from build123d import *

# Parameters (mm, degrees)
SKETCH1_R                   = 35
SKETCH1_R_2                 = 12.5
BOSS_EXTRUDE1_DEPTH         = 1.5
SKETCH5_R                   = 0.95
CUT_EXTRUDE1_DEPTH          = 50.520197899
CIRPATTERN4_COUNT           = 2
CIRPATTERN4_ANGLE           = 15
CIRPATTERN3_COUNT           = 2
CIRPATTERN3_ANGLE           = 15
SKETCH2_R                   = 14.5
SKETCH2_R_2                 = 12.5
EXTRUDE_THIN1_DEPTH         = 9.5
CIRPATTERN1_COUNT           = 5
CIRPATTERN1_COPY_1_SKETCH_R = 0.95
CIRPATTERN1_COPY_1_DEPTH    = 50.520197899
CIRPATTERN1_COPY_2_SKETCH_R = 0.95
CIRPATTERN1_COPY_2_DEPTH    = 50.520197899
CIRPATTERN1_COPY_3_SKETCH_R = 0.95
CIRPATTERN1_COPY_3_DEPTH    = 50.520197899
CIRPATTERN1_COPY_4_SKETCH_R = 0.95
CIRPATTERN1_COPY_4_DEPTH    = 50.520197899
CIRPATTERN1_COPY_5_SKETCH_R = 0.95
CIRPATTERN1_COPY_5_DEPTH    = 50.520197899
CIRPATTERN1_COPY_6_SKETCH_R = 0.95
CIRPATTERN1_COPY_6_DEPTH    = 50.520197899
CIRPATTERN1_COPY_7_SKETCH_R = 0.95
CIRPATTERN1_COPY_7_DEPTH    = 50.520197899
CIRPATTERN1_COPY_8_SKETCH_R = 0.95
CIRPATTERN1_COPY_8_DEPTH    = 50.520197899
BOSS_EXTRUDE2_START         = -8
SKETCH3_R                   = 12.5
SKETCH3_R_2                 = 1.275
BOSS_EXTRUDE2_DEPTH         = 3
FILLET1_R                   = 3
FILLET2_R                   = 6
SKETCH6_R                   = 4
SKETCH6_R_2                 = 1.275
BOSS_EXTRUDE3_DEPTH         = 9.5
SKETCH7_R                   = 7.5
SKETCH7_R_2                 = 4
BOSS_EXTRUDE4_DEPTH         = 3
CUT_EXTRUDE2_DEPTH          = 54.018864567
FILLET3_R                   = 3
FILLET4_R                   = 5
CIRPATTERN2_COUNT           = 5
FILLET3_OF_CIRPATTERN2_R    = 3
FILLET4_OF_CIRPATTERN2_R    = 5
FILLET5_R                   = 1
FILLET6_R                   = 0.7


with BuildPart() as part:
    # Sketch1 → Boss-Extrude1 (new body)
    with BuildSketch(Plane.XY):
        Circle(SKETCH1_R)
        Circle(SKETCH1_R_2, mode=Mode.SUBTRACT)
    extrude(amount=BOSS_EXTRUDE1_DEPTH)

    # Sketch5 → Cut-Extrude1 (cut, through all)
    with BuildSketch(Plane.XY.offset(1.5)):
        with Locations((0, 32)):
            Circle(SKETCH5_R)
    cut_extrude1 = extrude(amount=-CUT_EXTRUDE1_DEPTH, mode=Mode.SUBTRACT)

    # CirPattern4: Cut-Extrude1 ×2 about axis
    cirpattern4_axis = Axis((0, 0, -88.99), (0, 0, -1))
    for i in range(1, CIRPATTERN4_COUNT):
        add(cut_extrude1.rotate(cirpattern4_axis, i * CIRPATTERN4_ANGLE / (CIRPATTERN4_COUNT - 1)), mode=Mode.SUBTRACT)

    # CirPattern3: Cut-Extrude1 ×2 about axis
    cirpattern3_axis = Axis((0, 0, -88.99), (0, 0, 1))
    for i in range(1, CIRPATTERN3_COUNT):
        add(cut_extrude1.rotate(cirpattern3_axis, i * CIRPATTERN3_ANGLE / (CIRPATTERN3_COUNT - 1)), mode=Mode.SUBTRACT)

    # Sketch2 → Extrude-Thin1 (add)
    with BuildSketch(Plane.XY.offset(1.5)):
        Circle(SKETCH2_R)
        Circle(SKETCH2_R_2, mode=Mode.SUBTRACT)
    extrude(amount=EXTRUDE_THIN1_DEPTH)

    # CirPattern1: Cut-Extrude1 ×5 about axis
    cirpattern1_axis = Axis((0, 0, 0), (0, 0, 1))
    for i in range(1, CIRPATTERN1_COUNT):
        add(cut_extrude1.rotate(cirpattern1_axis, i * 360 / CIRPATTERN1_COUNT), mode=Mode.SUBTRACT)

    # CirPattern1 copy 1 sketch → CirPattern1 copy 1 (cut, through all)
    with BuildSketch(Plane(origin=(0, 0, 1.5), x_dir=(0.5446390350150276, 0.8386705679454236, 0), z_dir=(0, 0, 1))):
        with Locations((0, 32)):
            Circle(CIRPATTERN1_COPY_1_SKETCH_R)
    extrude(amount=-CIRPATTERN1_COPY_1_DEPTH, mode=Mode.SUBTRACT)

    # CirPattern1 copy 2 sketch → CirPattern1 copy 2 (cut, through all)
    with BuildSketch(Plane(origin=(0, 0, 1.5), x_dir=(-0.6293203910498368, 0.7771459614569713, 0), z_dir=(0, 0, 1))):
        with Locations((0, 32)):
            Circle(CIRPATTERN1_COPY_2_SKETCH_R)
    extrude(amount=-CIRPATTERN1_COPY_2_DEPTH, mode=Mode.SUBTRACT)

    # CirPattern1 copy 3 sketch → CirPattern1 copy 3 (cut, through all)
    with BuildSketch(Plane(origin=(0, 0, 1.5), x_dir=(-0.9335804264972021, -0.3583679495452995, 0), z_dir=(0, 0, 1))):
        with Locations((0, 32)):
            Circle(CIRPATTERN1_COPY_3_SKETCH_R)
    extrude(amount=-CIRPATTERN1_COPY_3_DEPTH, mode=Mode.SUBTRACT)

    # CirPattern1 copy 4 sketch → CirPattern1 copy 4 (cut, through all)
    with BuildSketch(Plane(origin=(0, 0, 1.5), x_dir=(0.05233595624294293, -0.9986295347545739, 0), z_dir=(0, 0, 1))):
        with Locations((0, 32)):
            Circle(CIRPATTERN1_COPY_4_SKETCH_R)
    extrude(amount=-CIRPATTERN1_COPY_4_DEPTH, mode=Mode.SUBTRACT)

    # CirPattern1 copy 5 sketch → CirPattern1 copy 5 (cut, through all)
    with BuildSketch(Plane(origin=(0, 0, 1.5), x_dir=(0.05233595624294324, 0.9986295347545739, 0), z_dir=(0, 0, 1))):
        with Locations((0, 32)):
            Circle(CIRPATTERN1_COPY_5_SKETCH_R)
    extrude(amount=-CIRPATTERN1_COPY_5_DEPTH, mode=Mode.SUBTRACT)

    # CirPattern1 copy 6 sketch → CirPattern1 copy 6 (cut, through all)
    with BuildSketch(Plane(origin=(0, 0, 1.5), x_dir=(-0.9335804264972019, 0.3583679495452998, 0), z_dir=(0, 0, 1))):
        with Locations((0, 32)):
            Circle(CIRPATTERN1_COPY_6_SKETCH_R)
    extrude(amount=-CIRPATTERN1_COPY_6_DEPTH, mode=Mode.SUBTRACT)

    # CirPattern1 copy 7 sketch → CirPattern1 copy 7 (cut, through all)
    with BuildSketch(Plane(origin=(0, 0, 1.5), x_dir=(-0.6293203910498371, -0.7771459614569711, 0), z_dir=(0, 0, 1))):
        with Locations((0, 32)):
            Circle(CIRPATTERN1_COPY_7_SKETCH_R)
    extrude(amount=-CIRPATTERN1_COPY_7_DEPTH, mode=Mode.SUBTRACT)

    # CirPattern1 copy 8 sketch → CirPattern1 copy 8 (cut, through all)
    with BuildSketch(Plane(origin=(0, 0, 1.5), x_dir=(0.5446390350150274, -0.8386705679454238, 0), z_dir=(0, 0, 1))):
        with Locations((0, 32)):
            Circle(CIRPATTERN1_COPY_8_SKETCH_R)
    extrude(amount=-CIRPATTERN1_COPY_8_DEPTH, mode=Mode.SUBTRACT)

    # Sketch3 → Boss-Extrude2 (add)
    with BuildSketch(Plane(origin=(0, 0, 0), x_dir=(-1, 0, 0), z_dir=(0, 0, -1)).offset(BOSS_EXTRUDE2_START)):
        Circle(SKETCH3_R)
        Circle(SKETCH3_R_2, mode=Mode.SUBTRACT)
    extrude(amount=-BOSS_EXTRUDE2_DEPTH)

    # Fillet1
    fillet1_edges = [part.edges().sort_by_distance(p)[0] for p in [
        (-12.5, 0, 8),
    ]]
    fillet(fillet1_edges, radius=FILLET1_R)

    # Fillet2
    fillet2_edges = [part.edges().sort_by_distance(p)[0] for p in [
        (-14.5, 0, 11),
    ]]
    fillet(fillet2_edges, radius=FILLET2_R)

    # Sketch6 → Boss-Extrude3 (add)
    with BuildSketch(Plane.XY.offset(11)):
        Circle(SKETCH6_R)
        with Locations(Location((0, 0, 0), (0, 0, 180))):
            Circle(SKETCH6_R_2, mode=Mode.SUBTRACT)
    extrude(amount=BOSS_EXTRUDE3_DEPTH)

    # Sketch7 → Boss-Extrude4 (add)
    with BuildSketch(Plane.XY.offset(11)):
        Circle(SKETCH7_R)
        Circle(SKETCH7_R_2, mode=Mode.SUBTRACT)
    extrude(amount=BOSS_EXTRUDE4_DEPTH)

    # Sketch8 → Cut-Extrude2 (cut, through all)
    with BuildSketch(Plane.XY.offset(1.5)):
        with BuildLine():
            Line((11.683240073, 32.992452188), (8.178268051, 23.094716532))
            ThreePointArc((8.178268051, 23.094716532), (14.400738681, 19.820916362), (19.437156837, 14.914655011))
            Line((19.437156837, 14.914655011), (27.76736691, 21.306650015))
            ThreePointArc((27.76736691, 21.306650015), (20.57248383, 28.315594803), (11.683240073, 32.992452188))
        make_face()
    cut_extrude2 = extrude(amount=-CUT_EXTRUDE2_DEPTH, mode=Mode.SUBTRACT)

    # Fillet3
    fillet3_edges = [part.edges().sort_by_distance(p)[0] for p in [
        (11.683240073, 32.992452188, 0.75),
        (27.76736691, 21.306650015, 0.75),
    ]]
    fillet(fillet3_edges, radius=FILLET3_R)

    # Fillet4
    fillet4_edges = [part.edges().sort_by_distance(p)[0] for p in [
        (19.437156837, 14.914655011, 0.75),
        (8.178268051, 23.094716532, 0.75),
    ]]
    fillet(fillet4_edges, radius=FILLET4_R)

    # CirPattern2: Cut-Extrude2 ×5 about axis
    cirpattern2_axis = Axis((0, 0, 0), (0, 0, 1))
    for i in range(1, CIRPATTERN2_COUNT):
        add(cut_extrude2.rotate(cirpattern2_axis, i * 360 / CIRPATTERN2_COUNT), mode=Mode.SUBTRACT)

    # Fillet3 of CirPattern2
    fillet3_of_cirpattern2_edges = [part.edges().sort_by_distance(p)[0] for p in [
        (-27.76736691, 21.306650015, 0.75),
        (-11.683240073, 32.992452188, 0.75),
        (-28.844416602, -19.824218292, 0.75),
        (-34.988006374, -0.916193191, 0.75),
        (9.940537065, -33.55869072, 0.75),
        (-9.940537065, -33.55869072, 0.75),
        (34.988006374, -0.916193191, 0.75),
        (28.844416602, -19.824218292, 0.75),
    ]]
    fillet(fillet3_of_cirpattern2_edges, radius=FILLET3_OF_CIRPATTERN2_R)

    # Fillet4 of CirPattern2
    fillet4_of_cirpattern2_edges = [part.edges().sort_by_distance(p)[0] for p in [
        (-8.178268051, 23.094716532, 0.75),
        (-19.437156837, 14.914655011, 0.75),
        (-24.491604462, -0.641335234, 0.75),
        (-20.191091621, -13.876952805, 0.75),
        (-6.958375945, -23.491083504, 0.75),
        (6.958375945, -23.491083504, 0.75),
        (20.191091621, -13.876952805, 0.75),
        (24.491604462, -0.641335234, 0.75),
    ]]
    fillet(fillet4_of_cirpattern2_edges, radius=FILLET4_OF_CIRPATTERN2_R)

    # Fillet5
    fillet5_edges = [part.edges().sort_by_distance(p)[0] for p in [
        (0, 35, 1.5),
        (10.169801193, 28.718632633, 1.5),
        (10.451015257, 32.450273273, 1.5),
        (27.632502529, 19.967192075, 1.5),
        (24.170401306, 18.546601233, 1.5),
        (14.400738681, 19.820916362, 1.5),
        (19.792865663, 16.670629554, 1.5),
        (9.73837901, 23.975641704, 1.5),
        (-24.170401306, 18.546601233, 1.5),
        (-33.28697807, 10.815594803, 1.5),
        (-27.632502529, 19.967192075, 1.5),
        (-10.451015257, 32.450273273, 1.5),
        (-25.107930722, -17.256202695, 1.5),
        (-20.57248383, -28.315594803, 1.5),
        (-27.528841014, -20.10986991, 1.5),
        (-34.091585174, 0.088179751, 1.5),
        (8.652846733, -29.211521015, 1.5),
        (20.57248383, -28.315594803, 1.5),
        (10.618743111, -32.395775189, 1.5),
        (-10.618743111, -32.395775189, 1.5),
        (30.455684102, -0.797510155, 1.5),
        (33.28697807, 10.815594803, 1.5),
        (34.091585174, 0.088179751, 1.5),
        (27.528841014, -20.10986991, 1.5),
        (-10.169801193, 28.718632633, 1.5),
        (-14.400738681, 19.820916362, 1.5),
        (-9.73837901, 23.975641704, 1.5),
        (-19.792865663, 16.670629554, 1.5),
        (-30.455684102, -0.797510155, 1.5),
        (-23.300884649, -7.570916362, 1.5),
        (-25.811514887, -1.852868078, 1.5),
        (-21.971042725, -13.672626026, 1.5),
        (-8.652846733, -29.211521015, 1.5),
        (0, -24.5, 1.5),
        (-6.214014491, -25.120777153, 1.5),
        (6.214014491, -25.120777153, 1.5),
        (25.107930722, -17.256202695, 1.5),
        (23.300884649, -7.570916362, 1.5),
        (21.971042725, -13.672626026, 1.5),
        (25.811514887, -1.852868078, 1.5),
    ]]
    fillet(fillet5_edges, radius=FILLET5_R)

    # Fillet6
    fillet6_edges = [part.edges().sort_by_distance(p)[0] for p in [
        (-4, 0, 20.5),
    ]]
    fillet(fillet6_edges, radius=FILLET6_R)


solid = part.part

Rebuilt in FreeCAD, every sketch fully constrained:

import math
import FreeCAD as App
import Part
import Sketcher
from FreeCAD import Vector
Q = App.Units.Quantity


def edges_at(feature, points):
    """Names of the edges that pass closest to the given points."""
    edges = feature.Shape.Edges
    near = lambda p: min(range(len(edges)), key=lambda i: edges[i].distToShape(Part.Vertex(*p))[0])
    return sorted({f"Edge{near(p) + 1}" for p in points})

doc = App.newDocument("Part")
body = doc.addObject("PartDesign::Body", "Body")

# Sketch on XY plane
sketch1 = body.newObject("Sketcher::SketchObject", "Sketch")
sketch1.AttachmentSupport = (doc.getObject("XY_Plane"), [""])
sketch1.MapMode = "FlatFace"
sketch1.addGeometry(Part.Circle(Vector(0, 0, 0), Vector(0, 0, 1), 35), False)
sketch1.addGeometry(Part.Circle(Vector(0, 0, 0), Vector(0, 0, 1), 12), False)
sketch1.addConstraint(Sketcher.Constraint("Coincident", 0, 3, -1, 1))
sketch1.addConstraint(Sketcher.Constraint("Coincident", 1, 3, -1, 1))
sketch1.addConstraint(Sketcher.Constraint("Diameter", 0, Q("70 mm")))
sketch1.addConstraint(Sketcher.Constraint("Diameter", 1, Q("25 mm")))
pad1 = body.newObject("PartDesign::Pad", "Pad")
pad1.Profile = sketch1
pad1.Length = 1.5

# Sketch on XY plane
sketch2 = body.newObject("Sketcher::SketchObject", "Sketch001")
sketch2.AttachmentSupport = (doc.getObject("XY_Plane"), [""])
sketch2.MapMode = "FlatFace"
sketch2.AttachmentOffset = App.Placement(Vector(0, 0, 1.5), App.Rotation())
sketch2.addGeometry(Part.Circle(Vector(0, 32, 0), Vector(0, 0, 1), 0.9), False)
sketch2.addConstraint(Sketcher.Constraint("PointOnObject", 0, 3, -2))
sketch2.addConstraint(Sketcher.Constraint("Diameter", 0, Q("1.9 mm")))
sketch2.addConstraint(Sketcher.Constraint("DistanceY", -1, 1, 0, 3, Q("32 mm")))
pocket1 = body.newObject("PartDesign::Pocket", "Pocket")
pocket1.Profile = sketch2
pocket1.Type = "ThroughAll"
doc.recompute()

polarpattern = body.newObject("PartDesign::PolarPattern", "PolarPattern")
polarpattern.Originals = [pocket1]
polarpattern.Axis = (doc.getObject("Z_Axis"), [""])
polarpattern.Angle = 15
polarpattern.Occurrences = 2
polarpattern.Reversed = True
body.Tip = polarpattern
doc.recompute()

polarpattern2 = body.newObject("PartDesign::PolarPattern", "PolarPattern001")
polarpattern2.Originals = [pocket1]
polarpattern2.Axis = (doc.getObject("Z_Axis"), [""])
polarpattern2.Angle = 15
polarpattern2.Occurrences = 2
body.Tip = polarpattern2

# Sketch on XY plane
sketch3 = body.newObject("Sketcher::SketchObject", "Sketch002")
sketch3.AttachmentSupport = (doc.getObject("XY_Plane"), [""])
sketch3.MapMode = "FlatFace"
sketch3.AttachmentOffset = App.Placement(Vector(0, 0, 1.5), App.Rotation())
sketch3.addGeometry(Part.Circle(Vector(0, 0, 0), Vector(0, 0, 1), 14), False)
sketch3.addGeometry(Part.Circle(Vector(0, 0, 0), Vector(0, 0, 1), 12), False)
sketch3.addConstraint(Sketcher.Constraint("Coincident", 0, 3, -1, 1))
sketch3.addConstraint(Sketcher.Constraint("Coincident", 1, 3, -1, 1))
sketch3.addConstraint(Sketcher.Constraint("Diameter", 0, Q("29 mm")))
sketch3.addConstraint(Sketcher.Constraint("Diameter", 1, Q("25 mm")))
pad2 = body.newObject("PartDesign::Pad", "Pad001")
pad2.Profile = sketch3
pad2.Length = 9.5
doc.recompute()

polarpattern3 = body.newObject("PartDesign::PolarPattern", "PolarPattern002")
polarpattern3.Originals = [pocket1]
polarpattern3.Axis = (doc.getObject("Z_Axis"), [""])
polarpattern3.Angle = 360
polarpattern3.Occurrences = 5
body.Tip = polarpattern3

# Sketch on XY plane
sketch4 = body.newObject("Sketcher::SketchObject", "Sketch003")
sketch4.AttachmentSupport = (doc.getObject("XY_Plane"), [""])
sketch4.MapMode = "FlatFace"
sketch4.AttachmentOffset = App.Placement(Vector(0, 0, 1.5), App.Rotation())
sketch4.addGeometry(Part.Circle(Vector(-26.8, 17.4, 0), Vector(0, 0, 1), 0.9), False)
sketch4.addConstraint(Sketcher.Constraint("Diameter", 0, Q("1.9 mm")))
sketch4.addConstraint(Sketcher.Constraint("DistanceX", 0, 3, -1, 1, Q("26.837458 mm")))
sketch4.addConstraint(Sketcher.Constraint("DistanceY", -1, 1, 0, 3, Q("17.428449 mm")))
pocket2 = body.newObject("PartDesign::Pocket", "Pocket001")
pocket2.Profile = sketch4
pocket2.Type = "ThroughAll"

# Sketch on XY plane
sketch5 = body.newObject("Sketcher::SketchObject", "Sketch004")
sketch5.AttachmentSupport = (doc.getObject("XY_Plane"), [""])
sketch5.MapMode = "FlatFace"
sketch5.AttachmentOffset = App.Placement(Vector(0, 0, 1.5), App.Rotation())
sketch5.addGeometry(Part.Circle(Vector(-24.9, -20.1, 0), Vector(0, 0, 1), 0.9), False)
sketch5.addConstraint(Sketcher.Constraint("Diameter", 0, Q("1.9 mm")))
sketch5.addConstraint(Sketcher.Constraint("DistanceX", 0, 3, -1, 1, Q("24.868671 mm")))
sketch5.addConstraint(Sketcher.Constraint("DistanceY", 0, 3, -1, 1, Q("20.138253 mm")))
pocket3 = body.newObject("PartDesign::Pocket", "Pocket002")
pocket3.Profile = sketch5
pocket3.Type = "ThroughAll"

# Sketch on XY plane
sketch6 = body.newObject("Sketcher::SketchObject", "Sketch005")
sketch6.AttachmentSupport = (doc.getObject("XY_Plane"), [""])
sketch6.MapMode = "FlatFace"
sketch6.AttachmentOffset = App.Placement(Vector(0, 0, 1.5), App.Rotation())
sketch6.addGeometry(Part.Circle(Vector(11.5, -29.9, 0), Vector(0, 0, 1), 0.9), False)
sketch6.addConstraint(Sketcher.Constraint("Diameter", 0, Q("1.9 mm")))
sketch6.addConstraint(Sketcher.Constraint("DistanceX", -1, 1, 0, 3, Q("11.467774 mm")))
sketch6.addConstraint(Sketcher.Constraint("DistanceY", 0, 3, -1, 1, Q("29.874574 mm")))
pocket4 = body.newObject("PartDesign::Pocket", "Pocket003")
pocket4.Profile = sketch6
pocket4.Type = "ThroughAll"

# Sketch on XY plane
sketch7 = body.newObject("Sketcher::SketchObject", "Sketch006")
sketch7.AttachmentSupport = (doc.getObject("XY_Plane"), [""])
sketch7.MapMode = "FlatFace"
sketch7.AttachmentOffset = App.Placement(Vector(0, 0, 1.5), App.Rotation())
sketch7.addGeometry(Part.Circle(Vector(32, 1.7, 0), Vector(0, 0, 1), 0.9), False)
sketch7.addConstraint(Sketcher.Constraint("Diameter", 0, Q("1.9 mm")))
sketch7.addConstraint(Sketcher.Constraint("DistanceY", -1, 1, 0, 3, Q("1.674751 mm")))
sketch7.addConstraint(Sketcher.Constraint("DistanceX", -1, 1, 0, 3, Q("31.956145 mm")))
pocket5 = body.newObject("PartDesign::Pocket", "Pocket004")
pocket5.Profile = sketch7
pocket5.Type = "ThroughAll"

# Sketch on XY plane
sketch8 = body.newObject("Sketcher::SketchObject", "Sketch007")
sketch8.AttachmentSupport = (doc.getObject("XY_Plane"), [""])
sketch8.MapMode = "FlatFace"
sketch8.AttachmentOffset = App.Placement(Vector(0, 0, 1.5), App.Rotation())
sketch8.addGeometry(Part.Circle(Vector(-32, 1.7, 0), Vector(0, 0, 1), 0.9), False)
sketch8.addConstraint(Sketcher.Constraint("Diameter", 0, Q("1.9 mm")))
sketch8.addConstraint(Sketcher.Constraint("DistanceY", -1, 1, 0, 3, Q("1.674751 mm")))
sketch8.addConstraint(Sketcher.Constraint("DistanceX", 0, 3, -1, 1, Q("31.956145 mm")))
pocket6 = body.newObject("PartDesign::Pocket", "Pocket005")
pocket6.Profile = sketch8
pocket6.Type = "ThroughAll"

# Sketch on XY plane
sketch9 = body.newObject("Sketcher::SketchObject", "Sketch008")
sketch9.AttachmentSupport = (doc.getObject("XY_Plane"), [""])
sketch9.MapMode = "FlatFace"
sketch9.AttachmentOffset = App.Placement(Vector(0, 0, 1.5), App.Rotation())
sketch9.addGeometry(Part.Circle(Vector(-11.5, -29.9, 0), Vector(0, 0, 1), 0.9), False)
sketch9.addConstraint(Sketcher.Constraint("Diameter", 0, Q("1.9 mm")))
sketch9.addConstraint(Sketcher.Constraint("DistanceX", 0, 3, -1, 1, Q("11.467774 mm")))
sketch9.addConstraint(Sketcher.Constraint("DistanceY", 0, 3, -1, 1, Q("29.874574 mm")))
pocket7 = body.newObject("PartDesign::Pocket", "Pocket006")
pocket7.Profile = sketch9
pocket7.Type = "ThroughAll"

# Sketch on XY plane
sketch10 = body.newObject("Sketcher::SketchObject", "Sketch009")
sketch10.AttachmentSupport = (doc.getObject("XY_Plane"), [""])
sketch10.MapMode = "FlatFace"
sketch10.AttachmentOffset = App.Placement(Vector(0, 0, 1.5), App.Rotation())
sketch10.addGeometry(Part.Circle(Vector(24.9, -20.1, 0), Vector(0, 0, 1), 0.9), False)
sketch10.addConstraint(Sketcher.Constraint("Diameter", 0, Q("1.9 mm")))
sketch10.addConstraint(Sketcher.Constraint("DistanceX", -1, 1, 0, 3, Q("24.868671 mm")))
sketch10.addConstraint(Sketcher.Constraint("DistanceY", 0, 3, -1, 1, Q("20.138253 mm")))
pocket8 = body.newObject("PartDesign::Pocket", "Pocket007")
pocket8.Profile = sketch10
pocket8.Type = "ThroughAll"

# Sketch on XY plane
sketch11 = body.newObject("Sketcher::SketchObject", "Sketch010")
sketch11.AttachmentSupport = (doc.getObject("XY_Plane"), [""])
sketch11.MapMode = "FlatFace"
sketch11.AttachmentOffset = App.Placement(Vector(0, 0, 1.5), App.Rotation())
sketch11.addGeometry(Part.Circle(Vector(26.8, 17.4, 0), Vector(0, 0, 1), 0.9), False)
sketch11.addConstraint(Sketcher.Constraint("Diameter", 0, Q("1.9 mm")))
sketch11.addConstraint(Sketcher.Constraint("DistanceX", -1, 1, 0, 3, Q("26.837458 mm")))
sketch11.addConstraint(Sketcher.Constraint("DistanceY", -1, 1, 0, 3, Q("17.428449 mm")))
pocket9 = body.newObject("PartDesign::Pocket", "Pocket008")
pocket9.Profile = sketch11
pocket9.Type = "ThroughAll"

# Sketch on XY plane
sketch12 = body.newObject("Sketcher::SketchObject", "Sketch011")
sketch12.AttachmentSupport = (doc.getObject("XY_Plane"), [""])
sketch12.MapMode = "FlatFace"
sketch12.AttachmentOffset = App.Placement(Vector(0, 0, 8), App.Rotation())
sketch12.addGeometry(Part.Circle(Vector(0, 0, 0), Vector(0, 0, 1), 12.5), False)
sketch12.addGeometry(Part.Circle(Vector(0, 0, 0), Vector(0, 0, 1), 1.3), False)
sketch12.addConstraint(Sketcher.Constraint("Coincident", 0, 3, -1, 1))
sketch12.addConstraint(Sketcher.Constraint("Coincident", 1, 3, -1, 1))
sketch12.addConstraint(Sketcher.Constraint("Diameter", 0, Q("25 mm")))
sketch12.addConstraint(Sketcher.Constraint("Diameter", 1, Q("2.55 mm")))
pad3 = body.newObject("PartDesign::Pad", "Pad002")
pad3.Profile = sketch12
pad3.Length = 3
doc.recompute()

fillet = body.newObject("PartDesign::Fillet", "Fillet")
fillet.Base = (pad3, edges_at(pad3, [(-12.5, 0, 8)]))
fillet.Radius = 3
doc.recompute()

fillet2 = body.newObject("PartDesign::Fillet", "Fillet001")
fillet2.Base = (fillet, edges_at(fillet, [(-14.5, 0, 11)]))
fillet2.Radius = 6

# Sketch on XY plane
sketch13 = body.newObject("Sketcher::SketchObject", "Sketch012")
sketch13.AttachmentSupport = (doc.getObject("XY_Plane"), [""])
sketch13.MapMode = "FlatFace"
sketch13.AttachmentOffset = App.Placement(Vector(0, 0, 11), App.Rotation())
sketch13.addGeometry(Part.Circle(Vector(0, 0, 0), Vector(0, 0, 1), 4), False)
sketch13.addGeometry(Part.Circle(Vector(0, 0, 0), Vector(0, 0, 1), 1.3), False)
sketch13.addConstraint(Sketcher.Constraint("Coincident", 0, 3, -1, 1))
sketch13.addConstraint(Sketcher.Constraint("Coincident", 1, 3, -1, 1))
sketch13.addConstraint(Sketcher.Constraint("Diameter", 0, Q("8 mm")))
sketch13.addConstraint(Sketcher.Constraint("Diameter", 1, Q("2.55 mm")))
pad4 = body.newObject("PartDesign::Pad", "Pad003")
pad4.Profile = sketch13
pad4.Length = 9.5

# Sketch on XY plane
sketch14 = body.newObject("Sketcher::SketchObject", "Sketch013")
sketch14.AttachmentSupport = (doc.getObject("XY_Plane"), [""])
sketch14.MapMode = "FlatFace"
sketch14.AttachmentOffset = App.Placement(Vector(0, 0, 11), App.Rotation())
sketch14.addGeometry(Part.Circle(Vector(0, 0, 0), Vector(0, 0, 1), 7.5), False)
sketch14.addGeometry(Part.Circle(Vector(0, 0, 0), Vector(0, 0, 1), 4), False)
sketch14.addConstraint(Sketcher.Constraint("Coincident", 0, 3, -1, 1))
sketch14.addConstraint(Sketcher.Constraint("Coincident", 1, 3, -1, 1))
sketch14.addConstraint(Sketcher.Constraint("Diameter", 0, Q("15 mm")))
sketch14.addConstraint(Sketcher.Constraint("Diameter", 1, Q("8 mm")))
pad5 = body.newObject("PartDesign::Pad", "Pad004")
pad5.Profile = sketch14
pad5.Length = 3

# Sketch on XY plane
sketch15 = body.newObject("Sketcher::SketchObject", "Sketch014")
sketch15.AttachmentSupport = (doc.getObject("XY_Plane"), [""])
sketch15.MapMode = "FlatFace"
sketch15.AttachmentOffset = App.Placement(Vector(0, 0, 1.5), App.Rotation())
sketch15.addGeometry(Part.LineSegment(Vector(12, 33, 0), Vector(8, 23, 0)), False)
sketch15.addGeometry(Part.ArcOfCircle(Part.Circle(Vector(0, 0, 0), Vector(0, 0, 1), 25), math.radians(38), math.radians(70)), False)
sketch15.addGeometry(Part.LineSegment(Vector(19, 15, 0), Vector(28, 21, 0)), False)
sketch15.addGeometry(Part.ArcOfCircle(Part.Circle(Vector(0, 0, 0), Vector(0, 0, 1), 35), math.radians(37), math.radians(71)), False)
sketch15.addConstraint(Sketcher.Constraint("Coincident", 0, 2, 1, 2))
sketch15.addConstraint(Sketcher.Constraint("Coincident", 1, 1, 2, 1))
sketch15.addConstraint(Sketcher.Constraint("Coincident", 2, 2, 3, 1))
sketch15.addConstraint(Sketcher.Constraint("Coincident", 3, 2, 0, 1))
sketch15.addConstraint(Sketcher.Constraint("Coincident", 1, 3, -1, 1))
sketch15.addConstraint(Sketcher.Constraint("Coincident", 3, 3, -1, 1))
sketch15.addConstraint(Sketcher.Constraint("Radius", 3, Q("35 mm")))
sketch15.addConstraint(Sketcher.Constraint("Radius", 1, Q("24.5 mm")))
sketch15.addConstraint(Sketcher.Constraint("Angle", 0, Q("-109.5 deg")))
sketch15.addConstraint(Sketcher.Constraint("Angle", 2, Q("37.5 deg")))
sketch15.addConstraint(Sketcher.Constraint("DistanceX", 0, 2, 2, 2, Q("19.589099 mm")))
sketch15.addConstraint(Sketcher.Constraint("DistanceX", -1, 1, 0, 2, Q("8.178268 mm")))
pocket10 = body.newObject("PartDesign::Pocket", "Pocket009")
pocket10.Profile = sketch15
pocket10.Type = "ThroughAll"
doc.recompute()

fillet3 = body.newObject("PartDesign::Fillet", "Fillet002")
fillet3.Base = (pocket10, edges_at(pocket10, [(11.683, 32.992, 0.75), (27.767, 21.307, 0.75)]))
fillet3.Radius = 3
doc.recompute()

fillet4 = body.newObject("PartDesign::Fillet", "Fillet003")
fillet4.Base = (fillet3, edges_at(fillet3, [(19.437, 14.915, 0.75), (8.178, 23.095, 0.75)]))
fillet4.Radius = 5
doc.recompute()

polarpattern4 = body.newObject("PartDesign::PolarPattern", "PolarPattern003")
polarpattern4.Originals = [pocket10]
polarpattern4.Axis = (doc.getObject("Z_Axis"), [""])
polarpattern4.Angle = 360
polarpattern4.Occurrences = 5
body.Tip = polarpattern4
doc.recompute()

fillet5 = body.newObject("PartDesign::Fillet", "Fillet004")
fillet5.Base = (polarpattern4, edges_at(polarpattern4, [
    (-27.767, 21.307, 0.75),
    (-11.683, 32.992, 0.75),
    (-28.844, -19.824, 0.75),
    (-34.988, -0.916, 0.75),
    (9.941, -33.559, 0.75),
    (-9.941, -33.559, 0.75),
    (34.988, -0.916, 0.75),
    (28.844, -19.824, 0.75),
]))
fillet5.Radius = 3
doc.recompute()

fillet6 = body.newObject("PartDesign::Fillet", "Fillet005")
fillet6.Base = (fillet5, edges_at(fillet5, [
    (-8.178, 23.095, 0.75),
    (-19.437, 14.915, 0.75),
    (-24.492, -0.641, 0.75),
    (-20.191, -13.877, 0.75),
    (-6.958, -23.491, 0.75),
    (6.958, -23.491, 0.75),
    (20.191, -13.877, 0.75),
    (24.492, -0.641, 0.75),
]))
fillet6.Radius = 5
doc.recompute()

fillet7 = body.newObject("PartDesign::Fillet", "Fillet006")
fillet7.Base = (fillet6, edges_at(fillet6, [
    (0, 35, 1.5),
    (10.17, 28.719, 1.5),
    (10.451, 32.45, 1.5),
    (27.633, 19.967, 1.5),
    (24.17, 18.547, 1.5),
    (14.401, 19.821, 1.5),
    (19.793, 16.671, 1.5),
    (9.738, 23.976, 1.5),
    (-24.17, 18.547, 1.5),
    (-33.287, 10.816, 1.5),
    (-27.633, 19.967, 1.5),
    (-10.451, 32.45, 1.5),
    (-25.108, -17.256, 1.5),
    (-20.572, -28.316, 1.5),
    (-27.529, -20.11, 1.5),
    (-34.092, 0.088, 1.5),
    (8.653, -29.212, 1.5),
    (20.572, -28.316, 1.5),
    (10.619, -32.396, 1.5),
    (-10.619, -32.396, 1.5),
    (30.456, -0.798, 1.5),
    (33.287, 10.816, 1.5),
    (34.092, 0.088, 1.5),
    (27.529, -20.11, 1.5),
    (-10.17, 28.719, 1.5),
    (-14.401, 19.821, 1.5),
    (-9.738, 23.976, 1.5),
    (-19.793, 16.671, 1.5),
    (-30.456, -0.798, 1.5),
    (-23.301, -7.571, 1.5),
    (-25.812, -1.853, 1.5),
    (-21.971, -13.673, 1.5),
    (-8.653, -29.212, 1.5),
    (0, -24.5, 1.5),
    (-6.214, -25.121, 1.5),
    (6.214, -25.121, 1.5),
    (25.108, -17.256, 1.5),
    (23.301, -7.571, 1.5),
    (21.971, -13.673, 1.5),
    (25.812, -1.853, 1.5),
]))
fillet7.Radius = 1
doc.recompute()

fillet8 = body.newObject("PartDesign::Fillet", "Fillet007")
fillet8.Base = (fillet7, edges_at(fillet7, [(-4, 0, 20.5)]))
fillet8.Radius = 0.7

doc.recompute()
